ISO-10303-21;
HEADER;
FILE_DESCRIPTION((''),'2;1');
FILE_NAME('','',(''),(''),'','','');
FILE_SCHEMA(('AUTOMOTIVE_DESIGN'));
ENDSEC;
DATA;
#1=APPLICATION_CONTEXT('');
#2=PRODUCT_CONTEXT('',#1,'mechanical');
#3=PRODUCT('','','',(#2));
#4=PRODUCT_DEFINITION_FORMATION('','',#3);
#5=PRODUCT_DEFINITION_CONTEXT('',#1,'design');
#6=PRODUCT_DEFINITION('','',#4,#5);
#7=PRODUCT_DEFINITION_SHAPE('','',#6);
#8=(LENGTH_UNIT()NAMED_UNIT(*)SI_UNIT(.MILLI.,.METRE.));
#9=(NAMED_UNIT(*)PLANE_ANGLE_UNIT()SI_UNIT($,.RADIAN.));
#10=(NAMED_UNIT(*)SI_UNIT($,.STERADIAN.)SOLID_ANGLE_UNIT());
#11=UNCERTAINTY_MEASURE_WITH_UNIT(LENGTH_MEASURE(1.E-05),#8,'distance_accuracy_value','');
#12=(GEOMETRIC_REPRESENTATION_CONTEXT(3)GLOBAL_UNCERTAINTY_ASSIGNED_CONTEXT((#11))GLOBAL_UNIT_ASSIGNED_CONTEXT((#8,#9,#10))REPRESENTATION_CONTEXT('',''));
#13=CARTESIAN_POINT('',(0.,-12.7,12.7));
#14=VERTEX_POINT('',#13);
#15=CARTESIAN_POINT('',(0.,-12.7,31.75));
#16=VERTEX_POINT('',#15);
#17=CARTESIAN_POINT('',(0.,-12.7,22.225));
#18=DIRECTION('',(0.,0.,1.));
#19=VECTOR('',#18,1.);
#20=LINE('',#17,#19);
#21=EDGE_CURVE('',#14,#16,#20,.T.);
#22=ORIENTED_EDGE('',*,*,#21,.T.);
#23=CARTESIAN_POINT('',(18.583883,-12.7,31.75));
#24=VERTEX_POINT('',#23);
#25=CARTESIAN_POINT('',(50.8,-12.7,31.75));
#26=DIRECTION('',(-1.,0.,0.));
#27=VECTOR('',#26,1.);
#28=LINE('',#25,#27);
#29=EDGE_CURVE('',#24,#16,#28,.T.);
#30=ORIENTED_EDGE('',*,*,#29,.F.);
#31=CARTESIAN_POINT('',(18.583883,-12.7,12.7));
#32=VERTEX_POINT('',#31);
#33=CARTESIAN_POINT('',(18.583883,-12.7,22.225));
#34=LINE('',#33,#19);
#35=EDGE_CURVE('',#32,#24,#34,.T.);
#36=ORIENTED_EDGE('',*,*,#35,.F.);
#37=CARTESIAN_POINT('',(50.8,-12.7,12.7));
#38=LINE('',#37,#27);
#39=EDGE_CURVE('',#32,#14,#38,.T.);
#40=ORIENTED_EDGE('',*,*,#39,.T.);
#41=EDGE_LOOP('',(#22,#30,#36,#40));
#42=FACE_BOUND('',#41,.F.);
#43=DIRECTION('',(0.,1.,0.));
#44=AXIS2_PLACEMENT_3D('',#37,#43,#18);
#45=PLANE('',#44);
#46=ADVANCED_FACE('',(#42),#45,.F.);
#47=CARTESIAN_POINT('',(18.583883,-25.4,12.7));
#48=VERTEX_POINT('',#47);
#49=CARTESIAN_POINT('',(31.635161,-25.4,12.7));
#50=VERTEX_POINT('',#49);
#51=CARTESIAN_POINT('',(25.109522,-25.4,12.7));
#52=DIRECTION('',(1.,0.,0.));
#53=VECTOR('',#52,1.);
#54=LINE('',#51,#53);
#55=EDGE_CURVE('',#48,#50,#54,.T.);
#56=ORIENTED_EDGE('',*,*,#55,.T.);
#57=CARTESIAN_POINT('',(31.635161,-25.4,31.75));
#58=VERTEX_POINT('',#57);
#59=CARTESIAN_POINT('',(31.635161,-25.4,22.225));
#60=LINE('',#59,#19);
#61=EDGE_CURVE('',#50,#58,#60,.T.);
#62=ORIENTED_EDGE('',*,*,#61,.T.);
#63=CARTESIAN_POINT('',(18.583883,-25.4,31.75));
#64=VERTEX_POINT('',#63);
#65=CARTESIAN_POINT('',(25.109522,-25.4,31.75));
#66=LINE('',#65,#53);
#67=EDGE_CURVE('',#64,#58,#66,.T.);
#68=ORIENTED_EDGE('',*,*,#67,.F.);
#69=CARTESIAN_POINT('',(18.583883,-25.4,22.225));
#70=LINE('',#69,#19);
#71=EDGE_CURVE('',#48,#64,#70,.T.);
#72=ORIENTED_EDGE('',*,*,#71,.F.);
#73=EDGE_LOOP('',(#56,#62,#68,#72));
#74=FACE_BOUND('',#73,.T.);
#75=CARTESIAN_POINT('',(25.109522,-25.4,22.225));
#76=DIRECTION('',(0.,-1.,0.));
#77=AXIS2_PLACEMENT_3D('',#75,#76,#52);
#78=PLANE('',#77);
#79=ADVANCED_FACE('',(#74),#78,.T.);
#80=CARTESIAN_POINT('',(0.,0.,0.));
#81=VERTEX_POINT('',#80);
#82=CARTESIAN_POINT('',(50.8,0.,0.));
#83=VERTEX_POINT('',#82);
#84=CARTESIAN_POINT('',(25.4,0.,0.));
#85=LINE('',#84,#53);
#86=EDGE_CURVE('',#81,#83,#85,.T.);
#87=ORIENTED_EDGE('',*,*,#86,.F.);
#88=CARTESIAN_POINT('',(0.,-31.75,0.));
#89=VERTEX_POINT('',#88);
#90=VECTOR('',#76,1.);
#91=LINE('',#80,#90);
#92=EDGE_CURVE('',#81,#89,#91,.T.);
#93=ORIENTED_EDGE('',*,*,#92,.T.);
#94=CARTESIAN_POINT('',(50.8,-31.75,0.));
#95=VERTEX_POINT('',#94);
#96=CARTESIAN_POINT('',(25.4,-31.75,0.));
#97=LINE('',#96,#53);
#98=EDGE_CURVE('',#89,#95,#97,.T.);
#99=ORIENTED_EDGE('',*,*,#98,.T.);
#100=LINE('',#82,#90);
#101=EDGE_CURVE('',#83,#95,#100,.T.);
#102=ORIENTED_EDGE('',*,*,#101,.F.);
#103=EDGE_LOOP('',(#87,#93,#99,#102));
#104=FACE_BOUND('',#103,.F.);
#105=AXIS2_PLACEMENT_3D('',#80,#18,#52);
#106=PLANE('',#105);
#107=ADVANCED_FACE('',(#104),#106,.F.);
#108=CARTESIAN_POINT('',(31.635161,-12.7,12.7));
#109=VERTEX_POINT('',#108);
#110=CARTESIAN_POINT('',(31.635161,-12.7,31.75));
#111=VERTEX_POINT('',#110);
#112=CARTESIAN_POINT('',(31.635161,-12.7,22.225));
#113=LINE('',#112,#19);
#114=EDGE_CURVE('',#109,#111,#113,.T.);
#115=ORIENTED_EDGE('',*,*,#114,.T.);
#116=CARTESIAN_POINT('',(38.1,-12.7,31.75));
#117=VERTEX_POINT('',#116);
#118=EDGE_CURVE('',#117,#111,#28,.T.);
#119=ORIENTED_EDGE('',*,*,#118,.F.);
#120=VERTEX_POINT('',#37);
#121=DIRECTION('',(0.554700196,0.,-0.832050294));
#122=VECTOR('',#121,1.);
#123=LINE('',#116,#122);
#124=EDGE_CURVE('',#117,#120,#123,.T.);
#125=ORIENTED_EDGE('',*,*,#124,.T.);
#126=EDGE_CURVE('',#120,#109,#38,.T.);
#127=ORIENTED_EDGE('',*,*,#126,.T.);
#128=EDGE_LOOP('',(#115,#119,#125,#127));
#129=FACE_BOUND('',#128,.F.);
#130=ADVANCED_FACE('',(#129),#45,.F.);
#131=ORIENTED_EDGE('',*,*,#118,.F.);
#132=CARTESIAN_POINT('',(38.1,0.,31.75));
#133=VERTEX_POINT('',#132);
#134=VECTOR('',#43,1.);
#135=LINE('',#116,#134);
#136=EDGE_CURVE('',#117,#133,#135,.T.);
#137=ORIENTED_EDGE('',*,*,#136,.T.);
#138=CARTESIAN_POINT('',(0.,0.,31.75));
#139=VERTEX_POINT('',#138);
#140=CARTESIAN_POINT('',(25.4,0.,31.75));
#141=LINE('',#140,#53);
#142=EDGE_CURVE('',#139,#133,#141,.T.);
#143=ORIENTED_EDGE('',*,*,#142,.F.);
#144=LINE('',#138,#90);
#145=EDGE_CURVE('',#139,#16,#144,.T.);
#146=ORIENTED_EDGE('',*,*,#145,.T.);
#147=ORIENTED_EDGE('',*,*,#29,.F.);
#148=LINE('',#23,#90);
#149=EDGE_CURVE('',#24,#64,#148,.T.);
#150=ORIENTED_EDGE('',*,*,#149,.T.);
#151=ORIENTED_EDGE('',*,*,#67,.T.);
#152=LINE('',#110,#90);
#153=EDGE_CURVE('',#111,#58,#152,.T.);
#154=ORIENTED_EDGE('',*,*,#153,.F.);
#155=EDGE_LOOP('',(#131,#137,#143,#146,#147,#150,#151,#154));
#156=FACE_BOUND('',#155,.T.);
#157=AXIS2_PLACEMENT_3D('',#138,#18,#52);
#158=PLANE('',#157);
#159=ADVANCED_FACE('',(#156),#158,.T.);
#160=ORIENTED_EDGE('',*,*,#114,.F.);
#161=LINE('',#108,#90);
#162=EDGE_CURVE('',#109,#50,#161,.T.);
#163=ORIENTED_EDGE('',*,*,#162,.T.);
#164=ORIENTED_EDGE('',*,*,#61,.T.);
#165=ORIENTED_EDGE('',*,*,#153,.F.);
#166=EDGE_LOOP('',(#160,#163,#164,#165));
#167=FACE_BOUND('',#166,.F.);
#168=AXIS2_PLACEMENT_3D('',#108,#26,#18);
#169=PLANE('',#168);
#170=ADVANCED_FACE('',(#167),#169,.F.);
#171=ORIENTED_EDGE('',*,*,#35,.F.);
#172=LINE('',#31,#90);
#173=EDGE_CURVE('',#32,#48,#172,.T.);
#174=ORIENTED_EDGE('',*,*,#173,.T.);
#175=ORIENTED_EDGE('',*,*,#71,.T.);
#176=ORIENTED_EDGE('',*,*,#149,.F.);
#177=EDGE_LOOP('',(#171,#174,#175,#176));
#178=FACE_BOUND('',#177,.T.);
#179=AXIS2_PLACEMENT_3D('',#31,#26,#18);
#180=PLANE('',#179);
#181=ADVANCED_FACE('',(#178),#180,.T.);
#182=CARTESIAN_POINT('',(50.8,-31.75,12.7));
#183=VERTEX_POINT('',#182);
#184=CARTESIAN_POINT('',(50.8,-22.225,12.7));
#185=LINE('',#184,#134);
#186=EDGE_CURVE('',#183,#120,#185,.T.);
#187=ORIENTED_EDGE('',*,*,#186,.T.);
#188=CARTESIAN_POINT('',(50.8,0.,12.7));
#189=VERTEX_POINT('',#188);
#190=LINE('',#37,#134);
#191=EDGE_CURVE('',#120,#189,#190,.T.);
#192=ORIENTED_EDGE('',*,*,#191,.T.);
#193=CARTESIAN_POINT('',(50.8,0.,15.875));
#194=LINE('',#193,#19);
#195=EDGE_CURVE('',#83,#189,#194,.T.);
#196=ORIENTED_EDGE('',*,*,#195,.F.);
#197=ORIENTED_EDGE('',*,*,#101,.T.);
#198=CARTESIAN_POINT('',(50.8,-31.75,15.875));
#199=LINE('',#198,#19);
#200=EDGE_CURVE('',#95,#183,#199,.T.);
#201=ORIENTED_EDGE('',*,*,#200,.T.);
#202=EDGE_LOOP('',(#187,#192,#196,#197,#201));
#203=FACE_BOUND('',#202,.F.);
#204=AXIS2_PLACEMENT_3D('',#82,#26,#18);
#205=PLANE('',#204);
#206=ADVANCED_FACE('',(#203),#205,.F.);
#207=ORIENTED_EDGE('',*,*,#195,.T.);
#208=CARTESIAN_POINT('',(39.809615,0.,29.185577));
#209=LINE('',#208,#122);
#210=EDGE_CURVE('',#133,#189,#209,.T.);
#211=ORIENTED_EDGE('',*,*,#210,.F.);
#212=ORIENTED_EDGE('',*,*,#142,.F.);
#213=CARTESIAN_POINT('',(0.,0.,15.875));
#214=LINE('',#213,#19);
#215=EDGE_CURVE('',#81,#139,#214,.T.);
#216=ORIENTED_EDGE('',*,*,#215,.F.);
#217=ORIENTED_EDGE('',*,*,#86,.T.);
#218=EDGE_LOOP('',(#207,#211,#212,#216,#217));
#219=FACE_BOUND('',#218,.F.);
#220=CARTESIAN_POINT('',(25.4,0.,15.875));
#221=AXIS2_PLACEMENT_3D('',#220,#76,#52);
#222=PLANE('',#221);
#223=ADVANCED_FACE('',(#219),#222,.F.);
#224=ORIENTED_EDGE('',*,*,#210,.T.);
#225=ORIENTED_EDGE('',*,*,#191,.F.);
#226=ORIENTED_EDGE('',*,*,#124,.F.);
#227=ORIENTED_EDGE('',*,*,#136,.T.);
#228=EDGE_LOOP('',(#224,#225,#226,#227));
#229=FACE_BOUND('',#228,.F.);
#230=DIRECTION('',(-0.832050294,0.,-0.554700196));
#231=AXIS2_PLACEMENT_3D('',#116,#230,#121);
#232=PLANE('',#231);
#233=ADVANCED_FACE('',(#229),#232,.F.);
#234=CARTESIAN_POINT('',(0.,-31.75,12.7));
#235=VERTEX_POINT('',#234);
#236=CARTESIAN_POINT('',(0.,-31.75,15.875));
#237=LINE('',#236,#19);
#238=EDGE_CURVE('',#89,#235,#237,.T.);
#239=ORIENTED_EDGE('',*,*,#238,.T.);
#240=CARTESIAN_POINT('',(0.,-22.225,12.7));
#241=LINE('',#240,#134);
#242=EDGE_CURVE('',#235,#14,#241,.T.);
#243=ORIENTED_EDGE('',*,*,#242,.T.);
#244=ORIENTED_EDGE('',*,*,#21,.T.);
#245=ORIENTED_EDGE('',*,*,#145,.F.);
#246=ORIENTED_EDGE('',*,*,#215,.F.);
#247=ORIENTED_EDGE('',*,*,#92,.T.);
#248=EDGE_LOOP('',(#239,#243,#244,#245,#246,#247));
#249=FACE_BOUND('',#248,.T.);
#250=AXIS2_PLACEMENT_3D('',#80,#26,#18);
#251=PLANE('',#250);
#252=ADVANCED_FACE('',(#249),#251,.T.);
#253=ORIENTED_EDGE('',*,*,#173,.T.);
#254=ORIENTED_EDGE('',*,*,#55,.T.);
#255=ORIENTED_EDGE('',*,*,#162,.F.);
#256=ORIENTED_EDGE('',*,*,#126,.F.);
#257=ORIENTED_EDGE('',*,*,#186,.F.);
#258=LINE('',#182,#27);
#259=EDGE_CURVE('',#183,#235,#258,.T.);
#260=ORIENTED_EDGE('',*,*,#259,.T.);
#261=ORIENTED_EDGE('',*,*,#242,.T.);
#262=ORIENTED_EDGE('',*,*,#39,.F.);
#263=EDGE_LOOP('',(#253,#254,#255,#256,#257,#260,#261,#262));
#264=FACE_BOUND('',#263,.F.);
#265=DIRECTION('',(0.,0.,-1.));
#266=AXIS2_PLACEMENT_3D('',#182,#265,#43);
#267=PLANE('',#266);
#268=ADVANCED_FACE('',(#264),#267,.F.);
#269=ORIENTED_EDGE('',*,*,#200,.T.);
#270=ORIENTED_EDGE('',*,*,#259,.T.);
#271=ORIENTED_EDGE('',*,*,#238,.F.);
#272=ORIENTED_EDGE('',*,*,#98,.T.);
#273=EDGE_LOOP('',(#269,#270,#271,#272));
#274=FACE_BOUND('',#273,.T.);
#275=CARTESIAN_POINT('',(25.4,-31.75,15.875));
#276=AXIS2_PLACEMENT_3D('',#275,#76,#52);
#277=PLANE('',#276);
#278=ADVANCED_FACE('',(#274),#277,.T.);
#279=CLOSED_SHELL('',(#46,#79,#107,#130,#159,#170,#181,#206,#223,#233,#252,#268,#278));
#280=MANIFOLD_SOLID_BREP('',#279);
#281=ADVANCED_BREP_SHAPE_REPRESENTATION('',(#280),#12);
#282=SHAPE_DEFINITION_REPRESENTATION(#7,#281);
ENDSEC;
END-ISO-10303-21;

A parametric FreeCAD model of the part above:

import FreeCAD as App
import Part
import Sketcher

V = App.Vector
Q = App.Units.Quantity

doc = App.newDocument("Part")
body = doc.addObject("PartDesign::Body", "Body")

# Sketch on XZ plane
sketch1 = body.newObject("Sketcher::SketchObject", "Sketch")
sketch1.AttachmentSupport = (doc.getObject("XZ_Plane"), [""])
sketch1.MapMode = "FlatFace"
sketch1.addGeometry([
    Part.LineSegment(V(0, 32, 0), V(0, 0, 0)),
    Part.LineSegment(V(0, 0, 0), V(51, 0, 0)),
    Part.LineSegment(V(51, 0, 0), V(51, 32, 0)),
    Part.LineSegment(V(51, 32, 0), V(0, 32, 0)),
], False)
sketch1.addConstraint([
    Sketcher.Constraint("Coincident", 0, 2, 1, 1),
    Sketcher.Constraint("Coincident", 1, 2, 2, 1),
    Sketcher.Constraint("Coincident", 2, 2, 3, 1),
    Sketcher.Constraint("Coincident", 3, 2, 0, 1),
    Sketcher.Constraint("Vertical", 0),
    Sketcher.Constraint("Horizontal", 1),
    Sketcher.Constraint("Vertical", 2),
    Sketcher.Constraint("Horizontal", 3),
    Sketcher.Constraint("Coincident", 0, 2, -1, 1),
    Sketcher.Constraint("DistanceX", 1, 1, 1, 2, Q("2 in")),
    Sketcher.Constraint("DistanceY", 0, 2, 0, 1, Q("1.25 in")),
])
pad1 = body.newObject("PartDesign::Pad", "Pad")
pad1.Profile = sketch1
pad1.Length = Q("1.25 in")

# Sketch on YZ plane
sketch2 = body.newObject("Sketcher::SketchObject", "Sketch001")
sketch2.AttachmentSupport = (doc.getObject("YZ_Plane"), [""])
sketch2.MapMode = "FlatFace"
sketch2.AttachmentOffset = App.Placement(V(0, 0, 2 * 25.4), App.Rotation())
sketch2.addGeometry([
    Part.LineSegment(V(-32, 32, 0), V(-32, 13, 0)),
    Part.LineSegment(V(-32, 13, 0), V(-13, 13, 0)),
    Part.LineSegment(V(-13, 13, 0), V(-13, 32, 0)),
    Part.LineSegment(V(-13, 32, 0), V(-32, 32, 0)),
], False)
sketch2.addConstraint([
    Sketcher.Constraint("Coincident", 0, 2, 1, 1),
    Sketcher.Constraint("Coincident", 1, 2, 2, 1),
    Sketcher.Constraint("Coincident", 2, 2, 3, 1),
    Sketcher.Constraint("Coincident", 3, 2, 0, 1),
    Sketcher.Constraint("Vertical", 0),
    Sketcher.Constraint("Horizontal", 1),
    Sketcher.Constraint("Vertical", 2),
    Sketcher.Constraint("Horizontal", 3),
    Sketcher.Constraint("Equal", 3, 0),
    Sketcher.Constraint("DistanceX", 1, 1, 1, 2, Q("0.75 in")),
    Sketcher.Constraint("DistanceY", -1, 1, 0, 2, Q("0.5 in")),
    Sketcher.Constraint("DistanceX", 1, 2, -1, 1, Q("0.5 in")),
])
pocket1 = body.newObject("PartDesign::Pocket", "Pocket")
pocket1.Profile = sketch2
pocket1.Length = Q("2 in")

# Sketch on XZ plane
sketch3 = body.newObject("Sketcher::SketchObject", "Sketch002")
sketch3.AttachmentSupport = (doc.getObject("XZ_Plane"), [""])
sketch3.MapMode = "FlatFace"
sketch3.AttachmentOffset = App.Placement(V(0, 0, 0.5 * 25.4), App.Rotation())
sketch3.addGeometry([
    Part.LineSegment(V(51, 32, 0), V(38, 32, 0)),
    Part.LineSegment(V(38, 32, 0), V(51, 13, 0)),
    Part.LineSegment(V(51, 13, 0), V(51, 32, 0)),
], False)
sketch3.addConstraint([
    Sketcher.Constraint("Coincident", 0, 2, 1, 1),
    Sketcher.Constraint("Coincident", 1, 2, 2, 1),
    Sketcher.Constraint("Coincident", 2, 2, 0, 1),
    Sketcher.Constraint("Horizontal", 0),
    Sketcher.Constraint("Vertical", 2),
    Sketcher.Constraint("DistanceX", 0, 2, 0, 1, Q("0.5 in")),
    Sketcher.Constraint("DistanceX", -1, 1, 1, 2, Q("2 in")),
    Sketcher.Constraint("DistanceY", 2, 1, 2, 2, Q("0.75 in")),
    Sketcher.Constraint("DistanceY", -1, 1, 1, 2, Q("0.5 in")),
])
pocket2 = body.newObject("PartDesign::Pocket", "Pocket001")
pocket2.Profile = sketch3
pocket2.Length = Q("1 in")

# Sketch on XZ plane
sketch4 = body.newObject("Sketcher::SketchObject", "Sketch003")
sketch4.AttachmentSupport = (doc.getObject("XZ_Plane"), [""])
sketch4.MapMode = "FlatFace"
sketch4.AttachmentOffset = App.Placement(V(0, 0, 0.5 * 25.4), App.Rotation())
sketch4.addGeometry([
    Part.LineSegment(V(19, 32, 0), V(19, 13, 0)),
    Part.LineSegment(V(19, 13, 0), V(32, 13, 0)),
    Part.LineSegment(V(32, 13, 0), V(32, 32, 0)),
    Part.LineSegment(V(32, 32, 0), V(19, 32, 0)),
], False)
sketch4.addConstraint([
    Sketcher.Constraint("Coincident", 0, 2, 1, 1),
    Sketcher.Constraint("Coincident", 1, 2, 2, 1),
    Sketcher.Constraint("Coincident", 2, 2, 3, 1),
    Sketcher.Constraint("Coincident", 3, 2, 0, 1),
    Sketcher.Constraint("Vertical", 0),
    Sketcher.Constraint("Horizontal", 1),
    Sketcher.Constraint("Vertical", 2),
    Sketcher.Constraint("Horizontal", 3),
    Sketcher.Constraint("DistanceY", 0, 2, 0, 1, Q("0.75 in")),
    Sketcher.Constraint("DistanceY", -1, 1, 0, 2, Q("0.5 in")),
    Sketcher.Constraint("DistanceX", 1, 1, 1, 2, Q("13.051277 mm")),
    Sketcher.Constraint("DistanceX", -1, 1, 1, 2, Q("31.635161 mm")),
])
pad2 = body.newObject("PartDesign::Pad", "Pad001")
pad2.Profile = sketch4
pad2.Length = Q("0.5 in")

doc.recompute()
